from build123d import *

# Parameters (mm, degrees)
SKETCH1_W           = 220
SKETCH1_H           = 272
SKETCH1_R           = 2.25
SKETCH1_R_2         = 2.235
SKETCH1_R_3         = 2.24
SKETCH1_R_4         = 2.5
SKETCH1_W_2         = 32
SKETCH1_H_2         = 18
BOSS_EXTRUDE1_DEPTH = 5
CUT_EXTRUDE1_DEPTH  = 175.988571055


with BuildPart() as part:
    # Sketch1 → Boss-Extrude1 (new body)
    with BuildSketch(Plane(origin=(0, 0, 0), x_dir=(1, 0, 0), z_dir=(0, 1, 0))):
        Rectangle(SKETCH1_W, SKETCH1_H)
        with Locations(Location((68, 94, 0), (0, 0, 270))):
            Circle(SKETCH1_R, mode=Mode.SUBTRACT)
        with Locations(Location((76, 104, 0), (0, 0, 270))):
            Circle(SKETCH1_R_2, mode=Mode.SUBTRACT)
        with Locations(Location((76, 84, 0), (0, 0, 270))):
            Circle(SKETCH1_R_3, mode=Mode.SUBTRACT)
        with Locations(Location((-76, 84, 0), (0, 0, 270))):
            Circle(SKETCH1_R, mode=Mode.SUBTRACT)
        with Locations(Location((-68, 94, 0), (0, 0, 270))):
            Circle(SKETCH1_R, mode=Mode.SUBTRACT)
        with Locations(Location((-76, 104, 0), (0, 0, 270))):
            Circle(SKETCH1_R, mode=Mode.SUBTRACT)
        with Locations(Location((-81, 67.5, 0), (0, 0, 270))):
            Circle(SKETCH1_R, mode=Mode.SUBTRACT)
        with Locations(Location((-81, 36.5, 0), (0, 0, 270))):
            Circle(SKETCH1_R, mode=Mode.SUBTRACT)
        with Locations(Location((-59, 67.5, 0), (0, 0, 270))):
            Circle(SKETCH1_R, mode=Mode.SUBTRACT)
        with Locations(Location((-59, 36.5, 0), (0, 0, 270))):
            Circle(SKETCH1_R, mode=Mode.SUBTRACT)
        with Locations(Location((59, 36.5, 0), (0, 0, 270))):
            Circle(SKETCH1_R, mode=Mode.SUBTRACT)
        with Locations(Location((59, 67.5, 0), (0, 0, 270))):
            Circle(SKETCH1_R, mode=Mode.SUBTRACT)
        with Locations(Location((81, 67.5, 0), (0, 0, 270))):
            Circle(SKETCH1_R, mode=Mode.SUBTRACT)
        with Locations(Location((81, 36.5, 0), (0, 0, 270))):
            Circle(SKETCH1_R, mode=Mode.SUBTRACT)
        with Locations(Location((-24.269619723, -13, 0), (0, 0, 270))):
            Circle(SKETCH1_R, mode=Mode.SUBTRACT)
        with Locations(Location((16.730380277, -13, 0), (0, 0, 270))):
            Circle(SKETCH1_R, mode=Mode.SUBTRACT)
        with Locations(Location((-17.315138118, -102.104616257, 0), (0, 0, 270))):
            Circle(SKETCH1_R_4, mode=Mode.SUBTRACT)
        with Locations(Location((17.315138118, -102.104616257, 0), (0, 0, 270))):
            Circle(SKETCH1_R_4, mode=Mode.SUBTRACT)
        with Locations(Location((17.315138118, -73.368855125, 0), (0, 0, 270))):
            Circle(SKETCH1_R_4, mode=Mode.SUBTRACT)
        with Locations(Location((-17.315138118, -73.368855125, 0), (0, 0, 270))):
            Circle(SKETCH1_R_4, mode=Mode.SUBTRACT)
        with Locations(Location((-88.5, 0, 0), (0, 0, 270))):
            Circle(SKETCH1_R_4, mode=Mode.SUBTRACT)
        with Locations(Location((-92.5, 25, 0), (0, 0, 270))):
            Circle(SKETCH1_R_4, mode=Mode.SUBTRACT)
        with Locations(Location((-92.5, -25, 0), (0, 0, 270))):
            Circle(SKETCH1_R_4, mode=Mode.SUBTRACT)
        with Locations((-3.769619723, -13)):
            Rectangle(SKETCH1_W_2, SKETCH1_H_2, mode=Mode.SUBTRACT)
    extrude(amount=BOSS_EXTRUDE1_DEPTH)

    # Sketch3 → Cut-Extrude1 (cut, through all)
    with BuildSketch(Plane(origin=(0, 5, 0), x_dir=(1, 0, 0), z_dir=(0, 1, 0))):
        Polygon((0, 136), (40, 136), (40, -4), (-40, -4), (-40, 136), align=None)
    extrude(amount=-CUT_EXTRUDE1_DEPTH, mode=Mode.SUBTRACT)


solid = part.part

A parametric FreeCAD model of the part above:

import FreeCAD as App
import Part
import Sketcher
Q = App.Units.Quantity

doc = App.newDocument("Part")
body = doc.addObject("PartDesign::Body", "Body")

# Sketch on XZ plane
sketch1 = body.newObject("Sketcher::SketchObject", "Sketch")
sketch1.AttachmentSupport = (doc.getObject("XZ_Plane"), [""])
sketch1.MapMode = "FlatFace"
sketch1.addGeometry(Part.LineSegment(App.Vector(-110, -136, 0), App.Vector(-110, 136, 0)), False)
sketch1.addGeometry(Part.LineSegment(App.Vector(-110, 136, 0), App.Vector(110, 136, 0)), False)
sketch1.addGeometry(Part.LineSegment(App.Vector(110, 136, 0), App.Vector(110, -136, 0)), False)
sketch1.addGeometry(Part.LineSegment(App.Vector(110, -136, 0), App.Vector(-110, -136, 0)), False)
sketch1.addGeometry(Part.Circle(App.Vector(-17.3, 102.1, 0), App.Vector(0, 0, 1), 2.5), False)
sketch1.addGeometry(Part.Circle(App.Vector(-17.3, 73.4, 0), App.Vector(0, 0, 1), 2.5), False)
sketch1.addGeometry(Part.Circle(App.Vector(-92.5, 25, 0), App.Vector(0, 0, 1), 2.5), False)
sketch1.addGeometry(Part.Circle(App.Vector(-88.5, 0, 0), App.Vector(0, 0, 1), 2.5), False)
sketch1.addGeometry(Part.Circle(App.Vector(-24.3, 13, 0), App.Vector(0, 0, 1), 2.2), False)
sketch1.addGeometry(Part.Circle(App.Vector(17.3, 102.1, 0), App.Vector(0, 0, 1), 2.5), False)
sketch1.addGeometry(Part.Circle(App.Vector(17.3, 73.4, 0), App.Vector(0, 0, 1), 2.5), False)
sketch1.addGeometry(Part.LineSegment(App.Vector(12.2, 22, 0), App.Vector(-19.8, 22, 0)), False)
sketch1.addGeometry(Part.LineSegment(App.Vector(-19.8, 22, 0), App.Vector(-19.8, 4, 0)), False)
sketch1.addGeometry(Part.LineSegment(App.Vector(-19.8, 4, 0), App.Vector(12.2, 4, 0)), False)
sketch1.addGeometry(Part.LineSegment(App.Vector(12.2, 4, 0), App.Vector(12.2, 22, 0)), False)
sketch1.addGeometry(Part.Circle(App.Vector(16.7, 13, 0), App.Vector(0, 0, 1), 2.2), False)
sketch1.addGeometry(Part.Circle(App.Vector(-92.5, -25, 0), App.Vector(0, 0, 1), 2.5), False)
sketch1.addGeometry(Part.Circle(App.Vector(-81, -36.5, 0), App.Vector(0, 0, 1), 2.2), False)
sketch1.addGeometry(Part.Circle(App.Vector(-59, -36.5, 0), App.Vector(0, 0, 1), 2.2), False)
sketch1.addGeometry(Part.Circle(App.Vector(-81, -67.5, 0), App.Vector(0, 0, 1), 2.2), False)
sketch1.addGeometry(Part.Circle(App.Vector(-59, -67.5, 0), App.Vector(0, 0, 1), 2.2), False)
sketch1.addGeometry(Part.Circle(App.Vector(-76, -84, 0), App.Vector(0, 0, 1), 2.2), False)
sketch1.addGeometry(Part.Circle(App.Vector(-76, -104, 0), App.Vector(0, 0, 1), 2.2), False)
sketch1.addGeometry(Part.Circle(App.Vector(-68, -94, 0), App.Vector(0, 0, 1), 2.2), False)
sketch1.addGeometry(Part.Circle(App.Vector(59, -36.5, 0), App.Vector(0, 0, 1), 2.2), False)
sketch1.addGeometry(Part.Circle(App.Vector(81, -36.5, 0), App.Vector(0, 0, 1), 2.2), False)
sketch1.addGeometry(Part.Circle(App.Vector(59, -67.5, 0), App.Vector(0, 0, 1), 2.2), False)
sketch1.addGeometry(Part.Circle(App.Vector(81, -67.5, 0), App.Vector(0, 0, 1), 2.2), False)
sketch1.addGeometry(Part.Circle(App.Vector(76, -84, 0), App.Vector(0, 0, 1), 2.2), False)
sketch1.addGeometry(Part.Circle(App.Vector(68, -94, 0), App.Vector(0, 0, 1), 2.2), False)
sketch1.addGeometry(Part.Circle(App.Vector(76, -104, 0), App.Vector(0, 0, 1), 2.2), False)
sketch1.addConstraint(Sketcher.Constraint("Coincident", 0, 2, 1, 1))
sketch1.addConstraint(Sketcher.Constraint("Coincident", 1, 2, 2, 1))
sketch1.addConstraint(Sketcher.Constraint("Coincident", 2, 2, 3, 1))
sketch1.addConstraint(Sketcher.Constraint("Coincident", 3, 2, 0, 1))
sketch1.addConstraint(Sketcher.Constraint("Coincident", 11, 2, 12, 1))
sketch1.addConstraint(Sketcher.Constraint("Coincident", 12, 2, 13, 1))
sketch1.addConstraint(Sketcher.Constraint("Coincident", 13, 2, 14, 1))
sketch1.addConstraint(Sketcher.Constraint("Coincident", 14, 2, 11, 1))
sketch1.addConstraint(Sketcher.Constraint("Vertical", 0))
sketch1.addConstraint(Sketcher.Constraint("Horizontal", 1))
sketch1.addConstraint(Sketcher.Constraint("Vertical", 2))
sketch1.addConstraint(Sketcher.Constraint("Horizontal", 3))
sketch1.addConstraint(Sketcher.Constraint("Horizontal", 11))
sketch1.addConstraint(Sketcher.Constraint("Vertical", 12))
sketch1.addConstraint(Sketcher.Constraint("Horizontal", 13))
sketch1.addConstraint(Sketcher.Constraint("Vertical", 14))
sketch1.addConstraint(Sketcher.Constraint("Equal", 4, 5))
sketch1.addConstraint(Sketcher.Constraint("Equal", 5, 6))
sketch1.addConstraint(Sketcher.Constraint("Equal", 6, 7))
sketch1.addConstraint(Sketcher.Constraint("Equal", 7, 9))
sketch1.addConstraint(Sketcher.Constraint("Equal", 9, 10))
sketch1.addConstraint(Sketcher.Constraint("Equal", 8, 15))
sketch1.addConstraint(Sketcher.Constraint("Equal", 10, 16))
sketch1.addConstraint(Sketcher.Constraint("Equal", 15, 17))
sketch1.addConstraint(Sketcher.Constraint("Equal", 17, 18))
sketch1.addConstraint(Sketcher.Constraint("Equal", 18, 19))
sketch1.addConstraint(Sketcher.Constraint("Equal", 19, 20))
sketch1.addConstraint(Sketcher.Constraint("Equal", 20, 21))
sketch1.addConstraint(Sketcher.Constraint("Equal", 21, 22))
sketch1.addConstraint(Sketcher.Constraint("Equal", 22, 23))
sketch1.addConstraint(Sketcher.Constraint("Equal", 23, 24))
sketch1.addConstraint(Sketcher.Constraint("Equal", 24, 25))
sketch1.addConstraint(Sketcher.Constraint("Equal", 25, 26))
sketch1.addConstraint(Sketcher.Constraint("Equal", 26, 27))
sketch1.addConstraint(Sketcher.Constraint("Equal", 27, 29))
sketch1.addConstraint(Sketcher.Constraint("Symmetric", 0, 2, 2, 2, -1, 1))
sketch1.addConstraint(Sketcher.Constraint("Symmetric", 4, 3, 9, 3, -2))
sketch1.addConstraint(Sketcher.Constraint("Symmetric", 5, 3, 10, 3, -2))
sketch1.addConstraint(Sketcher.Constraint("Symmetric", 18, 3, 24, 3, -2))
sketch1.addConstraint(Sketcher.Constraint("Symmetric", 17, 3, 25, 3, -2))
sketch1.addConstraint(Sketcher.Constraint("Symmetric", 20, 3, 26, 3, -2))
sketch1.addConstraint(Sketcher.Constraint("Symmetric", 19, 3, 27, 3, -2))
sketch1.addConstraint(Sketcher.Constraint("Symmetric", 21, 3, 28, 3, -2))
sketch1.addConstraint(Sketcher.Constraint("Symmetric", 23, 3, 29, 3, -2))
sketch1.addConstraint(Sketcher.Constraint("Symmetric", 22, 3, 30, 3, -2))
sketch1.addConstraint(Sketcher.Constraint("Symmetric", 6, 3, 16, 3, -1))
sketch1.addConstraint(Sketcher.Constraint("PointOnObject", 7, 3, -1))
sketch1.addConstraint(Sketcher.Constraint("Horizontal", 8, 3, 15, 3))
sketch1.addConstraint(Sketcher.Constraint("Horizontal", 17, 3, 18, 3))
sketch1.addConstraint(Sketcher.Constraint("Horizontal", 19, 3, 20, 3))
sketch1.addConstraint(Sketcher.Constraint("Vertical", 4, 3, 5, 3))
sketch1.addConstraint(Sketcher.Constraint("Vertical", 17, 3, 19, 3))
sketch1.addConstraint(Sketcher.Constraint("Vertical", 18, 3, 20, 3))
sketch1.addConstraint(Sketcher.Constraint("Vertical", 21, 3, 22, 3))
sketch1.addConstraint(Sketcher.Constraint("Diameter", 4, Q("5 mm")))
sketch1.addConstraint(Sketcher.Constraint("Diameter", 8, Q("4.5 mm")))
sketch1.addConstraint(Sketcher.Constraint("Diameter", 28, Q("4.48 mm")))
sketch1.addConstraint(Sketcher.Constraint("Diameter", 30, Q("4.47 mm")))
sketch1.addConstraint(Sketcher.Constraint("DistanceX", 1, 1, 1, 2, Q("220 mm")))
sketch1.addConstraint(Sketcher.Constraint("DistanceX", 11, 2, 11, 1, Q("32 mm")))
sketch1.addConstraint(Sketcher.Constraint("DistanceY", 0, 1, 0, 2, Q("272 mm")))
sketch1.addConstraint(Sketcher.Constraint("DistanceY", 12, 2, 12, 1, Q("18 mm")))
sketch1.addConstraint(Sketcher.Constraint("DistanceY", -1, 1, 6, 3, Q("25 mm")))
sketch1.addConstraint(Sketcher.Constraint("DistanceY", -1, 1, 8, 3, Q("13 mm")))
sketch1.addConstraint(Sketcher.Constraint("DistanceX", 17, 3, -1, 1, Q("81 mm")))
sketch1.addConstraint(Sketcher.Constraint("DistanceX", 18, 3, -1, 1, Q("59 mm")))
sketch1.addConstraint(Sketcher.Constraint("DistanceX", 21, 3, -1, 1, Q("76 mm")))
sketch1.addConstraint(Sketcher.Constraint("DistanceY", 21, 3, -1, 1, Q("84 mm")))
sketch1.addConstraint(Sketcher.Constraint("DistanceY", 22, 3, -1, 1, Q("104 mm")))
sketch1.addConstraint(Sketcher.Constraint("DistanceX", 23, 3, -1, 1, Q("68 mm")))
sketch1.addConstraint(Sketcher.Constraint("DistanceY", 23, 3, -1, 1, Q("94 mm")))
sketch1.addConstraint(Sketcher.Constraint("DistanceY", -1, 1, 11, 2, Q("22 mm")))
sketch1.addConstraint(Sketcher.Constraint("DistanceX", 6, 3, 7, 3, Q("4 mm")))
sketch1.addConstraint(Sketcher.Constraint("DistanceX", 8, 3, 15, 3, Q("41 mm")))
sketch1.addConstraint(Sketcher.Constraint("DistanceY", 19, 3, 17, 3, Q("31 mm")))
sketch1.addConstraint(Sketcher.Constraint("DistanceX", 6, 3, -1, 1, Q("92.5 mm")))
sketch1.addConstraint(Sketcher.Constraint("DistanceY", 17, 3, -1, 1, Q("36.5 mm")))
sketch1.addConstraint(Sketcher.Constraint("DistanceX", 8, 3, 11, 2, Q("4.5 mm")))
sketch1.addConstraint(Sketcher.Constraint("DistanceX", 4, 3, -1, 1, Q("17.315138 mm")))
sketch1.addConstraint(Sketcher.Constraint("DistanceX", 8, 3, -1, 1, Q("24.26962 mm")))
sketch1.addConstraint(Sketcher.Constraint("DistanceY", 5, 3, 4, 3, Q("28.735761 mm")))
sketch1.addConstraint(Sketcher.Constraint("DistanceY", -1, 1, 4, 3, Q("102.104616 mm")))
pad1 = body.newObject("PartDesign::Pad", "Pad")
pad1.Profile = sketch1
pad1.Length = 5
pad1.Reversed = True

# Sketch on XZ plane
sketch2 = body.newObject("Sketcher::SketchObject", "Sketch001")
sketch2.AttachmentSupport = (doc.getObject("XZ_Plane"), [""])
sketch2.MapMode = "FlatFace"
sketch2.AttachmentOffset = App.Placement(App.Vector(0, 0, -5), App.Rotation())
sketch2.addGeometry(Part.LineSegment(App.Vector(40, -136, 0), App.Vector(-40, -136, 0)), False)
sketch2.addGeometry(Part.LineSegment(App.Vector(-40, -136, 0), App.Vector(-40, 4, 0)), False)
sketch2.addGeometry(Part.LineSegment(App.Vector(-40, 4, 0), App.Vector(40, 4, 0)), False)
sketch2.addGeometry(Part.LineSegment(App.Vector(40, 4, 0), App.Vector(40, -136, 0)), False)
sketch2.addConstraint(Sketcher.Constraint("Coincident", 0, 2, 1, 1))
sketch2.addConstraint(Sketcher.Constraint("Coincident", 1, 2, 2, 1))
sketch2.addConstraint(Sketcher.Constraint("Coincident", 2, 2, 3, 1))
sketch2.addConstraint(Sketcher.Constraint("Coincident", 3, 2, 0, 1))
sketch2.addConstraint(Sketcher.Constraint("Horizontal", 0))
sketch2.addConstraint(Sketcher.Constraint("Vertical", 1))
sketch2.addConstraint(Sketcher.Constraint("Horizontal", 2))
sketch2.addConstraint(Sketcher.Constraint("Vertical", 3))
sketch2.addConstraint(Sketcher.Constraint("DistanceX", 0, 2, 0, 1, Q("80 mm")))
sketch2.addConstraint(Sketcher.Constraint("DistanceY", 1, 1, 1, 2, Q("140 mm")))
sketch2.addConstraint(Sketcher.Constraint("DistanceX", 0, 2, -1, 1, Q("40 mm")))
sketch2.addConstraint(Sketcher.Constraint("DistanceY", 0, 2, -1, 1, Q("136 mm")))
pocket1 = body.newObject("PartDesign::Pocket", "Pocket")
pocket1.Profile = sketch2
pocket1.Type = "ThroughAll"
pocket1.Reversed = True

doc.recompute()
